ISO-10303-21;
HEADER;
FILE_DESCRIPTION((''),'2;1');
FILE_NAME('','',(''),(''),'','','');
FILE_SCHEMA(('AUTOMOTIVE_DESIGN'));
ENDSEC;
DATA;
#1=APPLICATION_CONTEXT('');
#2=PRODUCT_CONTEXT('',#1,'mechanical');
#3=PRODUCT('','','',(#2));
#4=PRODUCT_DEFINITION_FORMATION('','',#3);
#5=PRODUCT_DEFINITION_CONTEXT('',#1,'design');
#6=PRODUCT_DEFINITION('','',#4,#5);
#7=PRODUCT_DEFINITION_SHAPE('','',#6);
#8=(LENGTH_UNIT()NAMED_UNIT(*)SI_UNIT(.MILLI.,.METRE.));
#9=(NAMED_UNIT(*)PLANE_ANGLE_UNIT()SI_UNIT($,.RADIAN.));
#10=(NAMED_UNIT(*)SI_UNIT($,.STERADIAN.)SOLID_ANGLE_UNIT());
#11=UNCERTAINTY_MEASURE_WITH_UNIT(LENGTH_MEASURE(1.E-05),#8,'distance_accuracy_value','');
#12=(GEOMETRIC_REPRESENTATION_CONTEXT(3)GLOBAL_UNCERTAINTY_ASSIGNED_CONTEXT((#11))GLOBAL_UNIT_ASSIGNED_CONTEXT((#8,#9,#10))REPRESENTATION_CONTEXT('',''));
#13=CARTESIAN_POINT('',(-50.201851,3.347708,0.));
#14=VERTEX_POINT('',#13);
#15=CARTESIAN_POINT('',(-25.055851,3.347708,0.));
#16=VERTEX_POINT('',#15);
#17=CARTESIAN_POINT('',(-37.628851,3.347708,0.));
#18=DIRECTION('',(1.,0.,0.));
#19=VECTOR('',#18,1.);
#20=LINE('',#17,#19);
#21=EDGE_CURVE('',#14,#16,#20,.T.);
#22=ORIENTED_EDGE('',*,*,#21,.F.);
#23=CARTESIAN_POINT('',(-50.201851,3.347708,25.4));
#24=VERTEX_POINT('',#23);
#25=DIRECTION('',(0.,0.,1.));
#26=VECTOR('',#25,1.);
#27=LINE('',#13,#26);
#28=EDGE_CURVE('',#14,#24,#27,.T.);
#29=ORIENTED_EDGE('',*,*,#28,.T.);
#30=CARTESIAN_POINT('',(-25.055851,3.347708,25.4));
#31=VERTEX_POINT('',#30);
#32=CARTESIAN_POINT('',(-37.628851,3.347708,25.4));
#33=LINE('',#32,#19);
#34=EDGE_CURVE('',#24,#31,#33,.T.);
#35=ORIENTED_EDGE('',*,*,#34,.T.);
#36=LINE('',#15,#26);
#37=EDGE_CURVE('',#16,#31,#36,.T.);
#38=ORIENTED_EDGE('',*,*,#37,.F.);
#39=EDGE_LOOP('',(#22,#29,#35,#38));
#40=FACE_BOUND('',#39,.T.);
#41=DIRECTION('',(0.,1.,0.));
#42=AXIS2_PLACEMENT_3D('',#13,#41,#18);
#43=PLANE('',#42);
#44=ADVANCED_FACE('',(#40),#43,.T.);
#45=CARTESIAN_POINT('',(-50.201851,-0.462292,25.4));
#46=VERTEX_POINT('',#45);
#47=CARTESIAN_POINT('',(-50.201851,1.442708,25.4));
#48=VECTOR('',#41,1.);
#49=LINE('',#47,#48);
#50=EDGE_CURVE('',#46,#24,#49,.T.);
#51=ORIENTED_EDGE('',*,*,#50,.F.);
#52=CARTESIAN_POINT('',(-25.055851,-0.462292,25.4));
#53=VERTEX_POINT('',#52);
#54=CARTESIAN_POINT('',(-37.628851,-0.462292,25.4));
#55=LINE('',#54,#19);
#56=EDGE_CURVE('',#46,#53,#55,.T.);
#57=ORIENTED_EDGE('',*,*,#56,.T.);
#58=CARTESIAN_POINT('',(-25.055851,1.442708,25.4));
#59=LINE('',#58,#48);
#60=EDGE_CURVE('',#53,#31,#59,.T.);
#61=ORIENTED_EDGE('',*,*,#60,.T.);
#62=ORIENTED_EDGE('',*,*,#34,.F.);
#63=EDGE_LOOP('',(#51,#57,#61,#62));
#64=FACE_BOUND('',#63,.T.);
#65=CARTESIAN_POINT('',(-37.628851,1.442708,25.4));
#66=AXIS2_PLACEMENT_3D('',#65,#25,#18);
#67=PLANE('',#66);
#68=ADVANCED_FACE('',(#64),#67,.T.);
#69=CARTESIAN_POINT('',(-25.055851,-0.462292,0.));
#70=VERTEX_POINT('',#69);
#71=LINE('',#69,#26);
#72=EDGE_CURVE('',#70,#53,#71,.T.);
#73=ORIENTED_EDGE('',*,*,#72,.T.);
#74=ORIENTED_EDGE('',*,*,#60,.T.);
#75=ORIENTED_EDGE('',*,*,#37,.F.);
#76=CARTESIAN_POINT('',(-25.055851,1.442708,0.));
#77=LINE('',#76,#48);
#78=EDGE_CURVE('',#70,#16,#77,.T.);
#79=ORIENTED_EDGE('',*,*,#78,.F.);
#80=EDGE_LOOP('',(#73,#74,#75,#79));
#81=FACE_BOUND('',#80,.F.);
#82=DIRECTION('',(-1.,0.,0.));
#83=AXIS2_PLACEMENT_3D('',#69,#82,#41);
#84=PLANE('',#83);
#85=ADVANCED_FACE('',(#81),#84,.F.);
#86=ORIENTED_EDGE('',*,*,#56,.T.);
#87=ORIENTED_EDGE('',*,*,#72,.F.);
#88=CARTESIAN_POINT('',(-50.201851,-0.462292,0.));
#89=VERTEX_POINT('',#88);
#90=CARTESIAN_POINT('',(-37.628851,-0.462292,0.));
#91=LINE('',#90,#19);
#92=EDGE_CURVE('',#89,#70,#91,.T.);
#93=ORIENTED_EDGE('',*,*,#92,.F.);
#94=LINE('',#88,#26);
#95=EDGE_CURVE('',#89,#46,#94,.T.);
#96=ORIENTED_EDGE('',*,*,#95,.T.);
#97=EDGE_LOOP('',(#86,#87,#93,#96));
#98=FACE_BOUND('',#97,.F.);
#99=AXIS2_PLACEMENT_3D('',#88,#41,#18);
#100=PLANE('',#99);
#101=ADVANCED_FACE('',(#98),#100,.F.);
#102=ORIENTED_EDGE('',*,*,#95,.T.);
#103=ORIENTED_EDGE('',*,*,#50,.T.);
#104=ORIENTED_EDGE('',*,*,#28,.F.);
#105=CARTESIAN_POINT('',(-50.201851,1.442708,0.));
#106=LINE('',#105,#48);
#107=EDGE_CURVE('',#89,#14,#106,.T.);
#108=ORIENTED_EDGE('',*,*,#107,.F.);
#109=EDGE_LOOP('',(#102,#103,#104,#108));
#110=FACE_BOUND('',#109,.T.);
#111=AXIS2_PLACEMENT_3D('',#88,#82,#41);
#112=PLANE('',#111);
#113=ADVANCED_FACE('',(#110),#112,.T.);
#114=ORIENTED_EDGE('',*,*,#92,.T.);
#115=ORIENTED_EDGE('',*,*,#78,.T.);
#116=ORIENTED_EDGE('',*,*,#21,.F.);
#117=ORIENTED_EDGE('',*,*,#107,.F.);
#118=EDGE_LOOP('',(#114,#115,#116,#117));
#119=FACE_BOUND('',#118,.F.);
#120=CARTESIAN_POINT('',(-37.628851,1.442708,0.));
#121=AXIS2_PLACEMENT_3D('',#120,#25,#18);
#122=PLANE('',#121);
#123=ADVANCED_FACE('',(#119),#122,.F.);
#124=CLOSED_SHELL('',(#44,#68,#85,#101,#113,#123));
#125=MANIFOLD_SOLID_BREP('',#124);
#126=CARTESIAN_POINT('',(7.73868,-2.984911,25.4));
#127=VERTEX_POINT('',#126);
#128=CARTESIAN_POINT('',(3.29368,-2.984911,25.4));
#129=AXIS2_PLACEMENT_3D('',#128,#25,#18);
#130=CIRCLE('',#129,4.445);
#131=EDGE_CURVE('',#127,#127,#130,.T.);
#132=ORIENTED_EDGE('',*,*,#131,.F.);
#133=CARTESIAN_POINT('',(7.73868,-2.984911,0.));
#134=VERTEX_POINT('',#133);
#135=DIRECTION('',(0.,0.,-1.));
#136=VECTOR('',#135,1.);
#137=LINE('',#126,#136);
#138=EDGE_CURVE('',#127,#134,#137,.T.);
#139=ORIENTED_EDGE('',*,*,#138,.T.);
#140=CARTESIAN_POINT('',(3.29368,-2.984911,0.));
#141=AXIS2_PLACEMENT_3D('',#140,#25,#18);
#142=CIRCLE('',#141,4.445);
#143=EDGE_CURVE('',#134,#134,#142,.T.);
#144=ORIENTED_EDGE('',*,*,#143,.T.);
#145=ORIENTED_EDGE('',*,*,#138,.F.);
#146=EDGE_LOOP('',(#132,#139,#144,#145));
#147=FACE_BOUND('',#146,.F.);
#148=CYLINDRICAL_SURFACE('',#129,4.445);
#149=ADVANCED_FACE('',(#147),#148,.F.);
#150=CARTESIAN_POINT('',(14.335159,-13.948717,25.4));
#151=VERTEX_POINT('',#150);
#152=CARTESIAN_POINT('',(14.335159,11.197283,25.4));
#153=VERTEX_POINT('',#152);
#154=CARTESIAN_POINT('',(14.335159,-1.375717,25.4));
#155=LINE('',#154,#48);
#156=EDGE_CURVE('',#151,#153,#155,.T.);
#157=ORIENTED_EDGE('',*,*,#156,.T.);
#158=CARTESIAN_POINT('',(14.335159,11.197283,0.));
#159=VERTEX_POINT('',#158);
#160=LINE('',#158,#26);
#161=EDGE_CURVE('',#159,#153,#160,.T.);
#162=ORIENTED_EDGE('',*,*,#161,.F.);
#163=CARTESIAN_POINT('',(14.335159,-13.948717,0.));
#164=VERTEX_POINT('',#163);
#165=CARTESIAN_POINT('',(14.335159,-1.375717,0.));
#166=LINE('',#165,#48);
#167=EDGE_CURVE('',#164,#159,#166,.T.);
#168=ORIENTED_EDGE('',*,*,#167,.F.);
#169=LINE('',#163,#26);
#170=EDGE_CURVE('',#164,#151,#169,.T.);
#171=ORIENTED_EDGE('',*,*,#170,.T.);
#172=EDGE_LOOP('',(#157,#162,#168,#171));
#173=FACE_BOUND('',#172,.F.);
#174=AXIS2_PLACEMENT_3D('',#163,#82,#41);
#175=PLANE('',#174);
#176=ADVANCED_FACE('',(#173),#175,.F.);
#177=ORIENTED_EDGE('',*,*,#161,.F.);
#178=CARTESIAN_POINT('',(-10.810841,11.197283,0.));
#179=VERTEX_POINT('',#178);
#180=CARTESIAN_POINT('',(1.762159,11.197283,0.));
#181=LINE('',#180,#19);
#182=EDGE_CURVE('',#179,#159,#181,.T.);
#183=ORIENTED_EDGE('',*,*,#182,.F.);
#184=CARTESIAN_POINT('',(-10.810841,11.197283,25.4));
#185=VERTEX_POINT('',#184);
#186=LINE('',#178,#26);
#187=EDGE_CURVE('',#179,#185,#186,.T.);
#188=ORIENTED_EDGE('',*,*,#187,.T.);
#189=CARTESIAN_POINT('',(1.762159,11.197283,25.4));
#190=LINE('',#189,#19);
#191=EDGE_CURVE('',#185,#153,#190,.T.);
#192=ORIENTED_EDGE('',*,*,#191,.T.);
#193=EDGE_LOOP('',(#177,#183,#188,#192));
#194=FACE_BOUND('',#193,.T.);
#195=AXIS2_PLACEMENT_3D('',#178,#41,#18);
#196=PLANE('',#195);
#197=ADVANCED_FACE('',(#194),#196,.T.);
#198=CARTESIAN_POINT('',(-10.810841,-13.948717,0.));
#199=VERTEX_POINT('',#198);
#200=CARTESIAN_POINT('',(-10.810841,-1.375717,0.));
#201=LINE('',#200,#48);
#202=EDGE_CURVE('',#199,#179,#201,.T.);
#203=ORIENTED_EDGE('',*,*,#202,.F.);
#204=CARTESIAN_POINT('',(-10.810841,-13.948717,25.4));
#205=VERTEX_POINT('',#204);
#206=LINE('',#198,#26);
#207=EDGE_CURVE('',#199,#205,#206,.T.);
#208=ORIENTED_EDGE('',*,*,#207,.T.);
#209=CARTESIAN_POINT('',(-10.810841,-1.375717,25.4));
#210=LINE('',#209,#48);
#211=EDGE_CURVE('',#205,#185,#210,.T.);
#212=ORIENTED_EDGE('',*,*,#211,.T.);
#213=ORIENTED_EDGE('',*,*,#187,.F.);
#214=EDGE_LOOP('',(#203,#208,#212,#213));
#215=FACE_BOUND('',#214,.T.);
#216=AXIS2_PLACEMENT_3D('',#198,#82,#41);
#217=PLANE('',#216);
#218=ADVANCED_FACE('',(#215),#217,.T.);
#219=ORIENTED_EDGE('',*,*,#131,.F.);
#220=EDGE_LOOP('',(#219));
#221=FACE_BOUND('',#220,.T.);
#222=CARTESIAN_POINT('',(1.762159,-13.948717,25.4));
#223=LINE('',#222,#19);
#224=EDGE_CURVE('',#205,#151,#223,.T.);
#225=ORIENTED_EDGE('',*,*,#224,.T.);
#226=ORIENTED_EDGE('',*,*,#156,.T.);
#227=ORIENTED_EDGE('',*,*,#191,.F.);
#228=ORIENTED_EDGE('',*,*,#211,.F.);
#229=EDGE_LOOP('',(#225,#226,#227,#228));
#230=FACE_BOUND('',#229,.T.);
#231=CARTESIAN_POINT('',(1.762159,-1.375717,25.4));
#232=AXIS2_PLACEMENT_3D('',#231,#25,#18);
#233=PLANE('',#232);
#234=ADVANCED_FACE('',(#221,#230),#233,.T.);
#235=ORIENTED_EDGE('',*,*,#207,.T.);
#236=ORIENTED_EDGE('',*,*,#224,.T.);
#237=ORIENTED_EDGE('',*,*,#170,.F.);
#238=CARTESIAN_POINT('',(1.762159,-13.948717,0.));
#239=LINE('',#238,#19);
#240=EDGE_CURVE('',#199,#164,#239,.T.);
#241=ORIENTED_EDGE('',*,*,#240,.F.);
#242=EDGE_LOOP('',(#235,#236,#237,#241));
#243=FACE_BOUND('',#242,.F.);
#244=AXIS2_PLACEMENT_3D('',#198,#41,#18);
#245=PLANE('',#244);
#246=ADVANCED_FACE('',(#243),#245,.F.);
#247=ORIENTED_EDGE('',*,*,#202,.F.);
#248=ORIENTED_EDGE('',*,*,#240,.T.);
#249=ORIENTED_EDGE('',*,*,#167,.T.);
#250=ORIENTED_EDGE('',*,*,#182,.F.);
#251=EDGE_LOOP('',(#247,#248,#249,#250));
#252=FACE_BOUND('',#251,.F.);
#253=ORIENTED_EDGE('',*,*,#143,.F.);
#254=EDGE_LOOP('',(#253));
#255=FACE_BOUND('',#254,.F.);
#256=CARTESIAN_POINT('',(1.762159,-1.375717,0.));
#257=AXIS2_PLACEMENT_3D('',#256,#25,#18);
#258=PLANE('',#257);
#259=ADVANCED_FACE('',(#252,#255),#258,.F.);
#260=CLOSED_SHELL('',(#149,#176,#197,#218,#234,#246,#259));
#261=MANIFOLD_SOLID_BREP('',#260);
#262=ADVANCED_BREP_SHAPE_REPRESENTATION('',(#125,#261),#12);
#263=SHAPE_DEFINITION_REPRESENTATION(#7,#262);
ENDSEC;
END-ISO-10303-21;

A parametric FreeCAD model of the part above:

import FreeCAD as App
import Part
import Sketcher
Q = App.Units.Quantity

doc = App.newDocument("Part")
body = doc.addObject("PartDesign::Body", "Body")

# Sketch on XY plane
sketch1 = doc.addObject("Sketcher::SketchObject", "Sketch")
body.addObject(sketch1)
sketch1.AttachmentSupport = (doc.XY_Plane, [""])
sketch1.MapMode = "FlatFace"
sketch1.addGeometry([
    Part.LineSegment(App.Vector(-11, 11, 0), App.Vector(-11, -14, 0)),
    Part.LineSegment(App.Vector(-11, -14, 0), App.Vector(14, -14, 0)),
    Part.LineSegment(App.Vector(14, -14, 0), App.Vector(14, 11, 0)),
    Part.LineSegment(App.Vector(14, 11, 0), App.Vector(-11, 11, 0)),
], False)
sketch1.addConstraint([
    Sketcher.Constraint("Coincident", 0, 2, 1, 1),
    Sketcher.Constraint("Coincident", 1, 2, 2, 1),
    Sketcher.Constraint("Coincident", 2, 2, 3, 1),
    Sketcher.Constraint("Coincident", 3, 2, 0, 1),
    Sketcher.Constraint("Vertical", 0),
    Sketcher.Constraint("Horizontal", 1),
    Sketcher.Constraint("Vertical", 2),
    Sketcher.Constraint("Horizontal", 3),
    Sketcher.Constraint("Equal", 3, 0),
    Sketcher.Constraint("DistanceX", 1, 1, 1, 2, Q("0.99 in")),
    Sketcher.Constraint("DistanceX", 0, 2, -1, 1, Q("10.810841 mm")),
    Sketcher.Constraint("DistanceY", 0, 2, -1, 1, Q("13.948717 mm")),
])
pad1 = doc.addObject("PartDesign::Pad", "Pad")
body.addObject(pad1)
pad1.Profile = sketch1
pad1.Length = Q("1 in")

# Sketch on XY plane
sketch2 = doc.addObject("Sketcher::SketchObject", "Sketch001")
body.addObject(sketch2)
sketch2.AttachmentSupport = (doc.XY_Plane, [""])
sketch2.MapMode = "FlatFace"
sketch2.AttachmentOffset = App.Placement(App.Vector(0, 0, 1 * 25.4), App.Rotation())
sketch2.addGeometry(Part.Circle(App.Vector(3.3, -3, 0), App.Vector(0, 0, 1), 4.4), False)
sketch2.addConstraint([
    Sketcher.Constraint("Diameter", 0, Q("0.35 in")),
    Sketcher.Constraint("DistanceX", -1, 1, 0, 3, Q("3.29368 mm")),
    Sketcher.Constraint("DistanceY", 0, 3, -1, 1, Q("2.984911 mm")),
])
pocket1 = doc.addObject("PartDesign::Pocket", "Pocket")
body.addObject(pocket1)
pocket1.Profile = sketch2
pocket1.Length = Q("1 in")
body2 = doc.addObject("PartDesign::Body", "Body001")

# Sketch on XY plane
sketch3 = doc.addObject("Sketcher::SketchObject", "Sketch002")
body2.addObject(sketch3)
sketch3.AttachmentSupport = (doc.getObject("XY_Plane001"), [""])
sketch3.MapMode = "FlatFace"
sketch3.addGeometry([
    Part.LineSegment(App.Vector(-50.2, 3.3, 0), App.Vector(-50.2, -0.5, 0)),
    Part.LineSegment(App.Vector(-50.2, -0.5, 0), App.Vector(-25.1, -0.5, 0)),
    Part.LineSegment(App.Vector(-25.1, -0.5, 0), App.Vector(-25.1, 3.3, 0)),
    Part.LineSegment(App.Vector(-25.1, 3.3, 0), App.Vector(-50.2, 3.3, 0)),
], False)
sketch3.addConstraint([
    Sketcher.Constraint("Coincident", 0, 2, 1, 1),
    Sketcher.Constraint("Coincident", 1, 2, 2, 1),
    Sketcher.Constraint("Coincident", 2, 2, 3, 1),
    Sketcher.Constraint("Coincident", 3, 2, 0, 1),
    Sketcher.Constraint("Vertical", 0),
    Sketcher.Constraint("Horizontal", 1),
    Sketcher.Constraint("Vertical", 2),
    Sketcher.Constraint("Horizontal", 3),
    Sketcher.Constraint("DistanceX", 1, 1, 1, 2, Q("0.99 in")),
    Sketcher.Constraint("DistanceY", 0, 2, 0, 1, Q("0.15 in")),
    Sketcher.Constraint("DistanceX", 0, 2, -1, 1, Q("50.201851 mm")),
    Sketcher.Constraint("DistanceY", 0, 2, -1, 1, Q("0.462292 mm")),
])
pad2 = doc.addObject("PartDesign::Pad", "Pad001")
body2.addObject(pad2)
pad2.Profile = sketch3
pad2.Length = Q("1 in")

doc.recompute()
